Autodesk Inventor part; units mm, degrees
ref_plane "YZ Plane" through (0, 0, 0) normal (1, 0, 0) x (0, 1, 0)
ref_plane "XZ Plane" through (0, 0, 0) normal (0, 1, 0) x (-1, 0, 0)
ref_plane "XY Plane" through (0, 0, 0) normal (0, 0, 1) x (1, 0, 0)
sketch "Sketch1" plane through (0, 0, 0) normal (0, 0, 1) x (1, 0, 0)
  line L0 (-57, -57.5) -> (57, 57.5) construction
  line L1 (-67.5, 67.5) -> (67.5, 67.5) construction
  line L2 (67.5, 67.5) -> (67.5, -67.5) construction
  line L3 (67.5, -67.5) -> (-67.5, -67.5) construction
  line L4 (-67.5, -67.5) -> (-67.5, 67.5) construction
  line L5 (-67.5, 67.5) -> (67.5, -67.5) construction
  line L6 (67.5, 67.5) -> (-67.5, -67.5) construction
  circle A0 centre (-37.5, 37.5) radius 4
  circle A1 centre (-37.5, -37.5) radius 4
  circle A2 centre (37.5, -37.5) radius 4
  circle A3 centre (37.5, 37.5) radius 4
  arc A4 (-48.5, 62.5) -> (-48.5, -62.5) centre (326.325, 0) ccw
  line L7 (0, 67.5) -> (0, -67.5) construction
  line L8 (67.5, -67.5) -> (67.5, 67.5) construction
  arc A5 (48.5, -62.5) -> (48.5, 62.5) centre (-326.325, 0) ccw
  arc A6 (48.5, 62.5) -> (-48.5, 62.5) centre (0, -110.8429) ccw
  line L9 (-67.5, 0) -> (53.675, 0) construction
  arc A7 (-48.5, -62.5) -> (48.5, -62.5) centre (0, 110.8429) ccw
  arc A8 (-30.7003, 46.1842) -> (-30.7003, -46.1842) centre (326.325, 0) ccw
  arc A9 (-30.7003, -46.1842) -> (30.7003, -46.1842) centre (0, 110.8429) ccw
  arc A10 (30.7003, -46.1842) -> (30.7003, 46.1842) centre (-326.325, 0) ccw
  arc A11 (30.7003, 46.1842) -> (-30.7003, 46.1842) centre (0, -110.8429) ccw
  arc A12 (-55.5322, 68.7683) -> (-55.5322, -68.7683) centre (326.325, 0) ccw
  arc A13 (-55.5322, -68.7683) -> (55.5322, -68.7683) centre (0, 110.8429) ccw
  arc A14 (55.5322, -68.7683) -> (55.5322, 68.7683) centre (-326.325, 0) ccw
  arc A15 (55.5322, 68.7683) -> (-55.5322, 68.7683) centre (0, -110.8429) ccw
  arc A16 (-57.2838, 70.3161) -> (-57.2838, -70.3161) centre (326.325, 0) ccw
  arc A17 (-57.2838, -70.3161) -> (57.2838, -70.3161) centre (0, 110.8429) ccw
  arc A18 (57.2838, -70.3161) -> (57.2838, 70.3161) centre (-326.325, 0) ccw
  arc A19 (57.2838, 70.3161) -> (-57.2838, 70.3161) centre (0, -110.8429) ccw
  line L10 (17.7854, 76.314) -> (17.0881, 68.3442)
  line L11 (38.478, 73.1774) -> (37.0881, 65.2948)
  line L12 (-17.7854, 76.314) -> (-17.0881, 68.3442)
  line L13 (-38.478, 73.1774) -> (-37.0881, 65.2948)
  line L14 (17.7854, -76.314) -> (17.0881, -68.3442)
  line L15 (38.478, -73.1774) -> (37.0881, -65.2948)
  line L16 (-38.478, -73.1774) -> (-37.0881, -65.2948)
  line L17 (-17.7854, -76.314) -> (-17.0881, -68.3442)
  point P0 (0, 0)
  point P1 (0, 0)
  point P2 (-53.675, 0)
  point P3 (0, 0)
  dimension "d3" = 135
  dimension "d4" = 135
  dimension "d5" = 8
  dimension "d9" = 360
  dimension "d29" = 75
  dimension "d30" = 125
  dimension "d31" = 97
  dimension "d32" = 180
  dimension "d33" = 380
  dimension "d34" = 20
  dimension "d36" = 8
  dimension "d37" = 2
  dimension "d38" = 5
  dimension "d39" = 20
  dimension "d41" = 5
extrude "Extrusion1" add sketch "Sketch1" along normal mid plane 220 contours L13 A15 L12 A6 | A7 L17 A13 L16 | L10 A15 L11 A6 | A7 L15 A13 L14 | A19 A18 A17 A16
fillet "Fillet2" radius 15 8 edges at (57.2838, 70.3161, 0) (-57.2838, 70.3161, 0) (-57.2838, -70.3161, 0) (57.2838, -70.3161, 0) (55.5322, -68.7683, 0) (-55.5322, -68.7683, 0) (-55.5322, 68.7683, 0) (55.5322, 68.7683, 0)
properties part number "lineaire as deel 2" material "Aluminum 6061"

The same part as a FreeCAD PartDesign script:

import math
import FreeCAD as App
import Part
import Sketcher

V = App.Vector
Q = App.Units.Quantity


def edges_at(feature, points):
    """Names of the edges that pass closest to the given points."""
    edges = feature.Shape.Edges
    near = lambda p: min(range(len(edges)), key=lambda i: edges[i].distToShape(Part.Vertex(*p))[0])
    return sorted({f"Edge{near(p) + 1}" for p in points})

doc = App.newDocument("Part")
body = doc.addObject("PartDesign::Body", "Body")

# Sketch on XY plane
sketch1 = doc.addObject("Sketcher::SketchObject", "Sketch")
body.addObject(sketch1)
sketch1.AttachmentSupport = (doc.XY_Plane, [""])
sketch1.MapMode = "FlatFace"
sketch1.addGeometry(Part.ArcOfCircle(Part.Circle(V(0, -111, 0), V(0, 0, 1), 190), math.radians(72), math.radians(108)), False)
sketch1.addGeometry(Part.ArcOfCircle(Part.Circle(V(326, 0, 0), V(0, 0, 1), 390), math.radians(170), math.radians(190)), False)
sketch1.addGeometry(Part.ArcOfCircle(Part.Circle(V(0, 111, 0), V(0, 0, 1), 190), math.radians(-108), math.radians(-72)), False)
sketch1.addGeometry(Part.ArcOfCircle(Part.Circle(V(-326, 0, 0), V(0, 0, 1), 390), math.radians(-10), math.radians(10)), False)
sketch1.addGeometry(Part.LineSegment(V(-38, 73, 0), V(-37, 65, 0)), False)
sketch1.addGeometry(Part.ArcOfCircle(Part.Circle(V(0, -111, 0), V(0, 0, 1), 180), math.radians(95.45), math.radians(101.89)), False)
sketch1.addGeometry(Part.LineSegment(V(-17, 68, 0), V(-18, 76, 0)), False)
sketch1.addGeometry(Part.ArcOfCircle(Part.Circle(V(0, -111, 0), V(0, 0, 1), 188), math.radians(84.57), math.radians(95.43)), False)
sketch1.addGeometry(Part.LineSegment(V(18, 76, 0), V(17, 68, 0)), False)
sketch1.addGeometry(Part.ArcOfCircle(Part.Circle(V(0, -111, 0), V(0, 0, 1), 180), math.radians(78.11), math.radians(84.55)), False)
sketch1.addGeometry(Part.LineSegment(V(37, 65, 0), V(38, 73, 0)), False)
sketch1.addGeometry(Part.ArcOfCircle(Part.Circle(V(0, -111, 0), V(0, 0, 1), 188), math.radians(72.82), math.radians(78.19)), False)
sketch1.addGeometry(Part.ArcOfCircle(Part.Circle(V(-326, 0, 0), V(0, 0, 1), 388), math.radians(-10), math.radians(10)), False)
sketch1.addGeometry(Part.ArcOfCircle(Part.Circle(V(0, 111, 0), V(0, 0, 1), 188), math.radians(-78.19), math.radians(-72.82)), False)
sketch1.addGeometry(Part.LineSegment(V(38, -73, 0), V(37, -65, 0)), False)
sketch1.addGeometry(Part.ArcOfCircle(Part.Circle(V(0, 111, 0), V(0, 0, 1), 180), math.radians(-84.55), math.radians(-78.11)), False)
sketch1.addGeometry(Part.LineSegment(V(17, -68, 0), V(18, -76, 0)), False)
sketch1.addGeometry(Part.ArcOfCircle(Part.Circle(V(0, 111, 0), V(0, 0, 1), 188), math.radians(-95.43), math.radians(-84.57)), False)
sketch1.addGeometry(Part.LineSegment(V(-18, -76, 0), V(-17, -68, 0)), False)
sketch1.addGeometry(Part.ArcOfCircle(Part.Circle(V(0, 111, 0), V(0, 0, 1), 180), math.radians(-101.89), math.radians(-95.45)), False)
sketch1.addGeometry(Part.LineSegment(V(-37, -65, 0), V(-38, -73, 0)), False)
sketch1.addGeometry(Part.ArcOfCircle(Part.Circle(V(0, 111, 0), V(0, 0, 1), 188), math.radians(-107.18), math.radians(-101.81)), False)
sketch1.addGeometry(Part.ArcOfCircle(Part.Circle(V(326, 0, 0), V(0, 0, 1), 388), math.radians(170), math.radians(190)), False)
sketch1.addGeometry(Part.ArcOfCircle(Part.Circle(V(0, -111, 0), V(0, 0, 1), 188), math.radians(101.81), math.radians(107.18)), False)
sketch1.addConstraint(Sketcher.Constraint("Coincident", 0, 2, 1, 1))
sketch1.addConstraint(Sketcher.Constraint("Coincident", 1, 2, 2, 1))
sketch1.addConstraint(Sketcher.Constraint("Coincident", 2, 2, 3, 1))
sketch1.addConstraint(Sketcher.Constraint("Coincident", 3, 2, 0, 1))
sketch1.addConstraint(Sketcher.Constraint("Coincident", 4, 2, 5, 2))
sketch1.addConstraint(Sketcher.Constraint("Coincident", 5, 1, 6, 1))
sketch1.addConstraint(Sketcher.Constraint("Coincident", 6, 2, 7, 2))
sketch1.addConstraint(Sketcher.Constraint("Coincident", 7, 1, 8, 1))
sketch1.addConstraint(Sketcher.Constraint("Coincident", 8, 2, 9, 2))
sketch1.addConstraint(Sketcher.Constraint("Coincident", 9, 1, 10, 1))
sketch1.addConstraint(Sketcher.Constraint("Coincident", 10, 2, 11, 2))
sketch1.addConstraint(Sketcher.Constraint("Coincident", 11, 1, 12, 2))
sketch1.addConstraint(Sketcher.Constraint("Coincident", 12, 1, 13, 2))
sketch1.addConstraint(Sketcher.Constraint("Coincident", 13, 1, 14, 1))
sketch1.addConstraint(Sketcher.Constraint("Coincident", 14, 2, 15, 2))
sketch1.addConstraint(Sketcher.Constraint("Coincident", 15, 1, 16, 1))
sketch1.addConstraint(Sketcher.Constraint("Coincident", 16, 2, 17, 2))
sketch1.addConstraint(Sketcher.Constraint("Coincident", 17, 1, 18, 1))
sketch1.addConstraint(Sketcher.Constraint("Coincident", 18, 2, 19, 2))
sketch1.addConstraint(Sketcher.Constraint("Coincident", 19, 1, 20, 1))
sketch1.addConstraint(Sketcher.Constraint("Coincident", 20, 2, 21, 2))
sketch1.addConstraint(Sketcher.Constraint("Coincident", 21, 1, 22, 2))
sketch1.addConstraint(Sketcher.Constraint("Coincident", 22, 1, 23, 2))
sketch1.addConstraint(Sketcher.Constraint("Coincident", 23, 1, 4, 1))
sketch1.addConstraint(Sketcher.Constraint("Coincident", 5, 3, 0, 3))
sketch1.addConstraint(Sketcher.Constraint("Coincident", 7, 3, 0, 3))
sketch1.addConstraint(Sketcher.Constraint("Coincident", 9, 3, 0, 3))
sketch1.addConstraint(Sketcher.Constraint("Coincident", 11, 3, 0, 3))
sketch1.addConstraint(Sketcher.Constraint("Coincident", 12, 3, 3, 3))
sketch1.addConstraint(Sketcher.Constraint("Coincident", 13, 3, 2, 3))
sketch1.addConstraint(Sketcher.Constraint("Coincident", 15, 3, 2, 3))
sketch1.addConstraint(Sketcher.Constraint("Coincident", 17, 3, 2, 3))
sketch1.addConstraint(Sketcher.Constraint("Coincident", 19, 3, 2, 3))
sketch1.addConstraint(Sketcher.Constraint("Coincident", 21, 3, 2, 3))
sketch1.addConstraint(Sketcher.Constraint("Coincident", 22, 3, 1, 3))
sketch1.addConstraint(Sketcher.Constraint("Coincident", 23, 3, 0, 3))
sketch1.addConstraint(Sketcher.Constraint("Equal", 0, 2))
sketch1.addConstraint(Sketcher.Constraint("Equal", 1, 3))
sketch1.addConstraint(Sketcher.Constraint("Equal", 5, 9))
sketch1.addConstraint(Sketcher.Constraint("Equal", 7, 11))
sketch1.addConstraint(Sketcher.Constraint("Equal", 11, 13))
sketch1.addConstraint(Sketcher.Constraint("Equal", 9, 15))
sketch1.addConstraint(Sketcher.Constraint("Equal", 13, 17))
sketch1.addConstraint(Sketcher.Constraint("Equal", 15, 19))
sketch1.addConstraint(Sketcher.Constraint("Equal", 17, 21))
sketch1.addConstraint(Sketcher.Constraint("Equal", 12, 22))
sketch1.addConstraint(Sketcher.Constraint("Equal", 21, 23))
sketch1.addConstraint(Sketcher.Constraint("Symmetric", 0, 3, 2, 3, -1, 1))
sketch1.addConstraint(Sketcher.Constraint("Symmetric", 1, 3, 3, 3, -1, 1))
sketch1.addConstraint(Sketcher.Constraint("Symmetric", 6, 2, 7, 1, -2))
sketch1.addConstraint(Sketcher.Constraint("PointOnObject", 1, 3, -1))
sketch1.addConstraint(Sketcher.Constraint("Parallel", 4, 14))
sketch1.addConstraint(Sketcher.Constraint("Parallel", 6, 16))
sketch1.addConstraint(Sketcher.Constraint("Parallel", 8, 18))
sketch1.addConstraint(Sketcher.Constraint("Parallel", 10, 20))
sketch1.addConstraint(Sketcher.Constraint("Horizontal", 5, 1, 8, 2))
sketch1.addConstraint(Sketcher.Constraint("Horizontal", 4, 2, 9, 1))
sketch1.addConstraint(Sketcher.Constraint("Horizontal", 16, 2, 17, 1))
sketch1.addConstraint(Sketcher.Constraint("Horizontal", 14, 2, 19, 1))
sketch1.addConstraint(Sketcher.Constraint("Horizontal", 13, 1, 20, 2))
sketch1.addConstraint(Sketcher.Constraint("Vertical", 10, 2, 13, 1))
sketch1.addConstraint(Sketcher.Constraint("Vertical", 8, 2, 15, 1))
sketch1.addConstraint(Sketcher.Constraint("Radius", 0, Q("190 mm")))
sketch1.addConstraint(Sketcher.Constraint("Radius", 5, Q("180 mm")))
sketch1.addConstraint(Sketcher.Constraint("Radius", 1, Q("390 mm")))
sketch1.addConstraint(Sketcher.Constraint("Radius", 7, Q("188 mm")))
sketch1.addConstraint(Sketcher.Constraint("Radius", 12, Q("388 mm")))
sketch1.addConstraint(Sketcher.Constraint("DistanceX", 4, 2, 5, 1, Q("20 mm")))
sketch1.addConstraint(Sketcher.Constraint("Angle", 4, Q("-80 deg")))
sketch1.addConstraint(Sketcher.Constraint("Angle", 6, Q("95.0002 deg")))
sketch1.addConstraint(Sketcher.Constraint("DistanceX", 3, 3, 1, 3, Q("652.65 mm")))
sketch1.addConstraint(Sketcher.Constraint("DistanceY", 0, 3, -1, 1, Q("110.843 mm")))
sketch1.addConstraint(Sketcher.Constraint("DistanceX", 4, 2, -1, 1, Q("37.088 mm")))
pad1 = doc.addObject("PartDesign::Pad", "Pad")
body.addObject(pad1)
pad1.Profile = sketch1
pad1.Length = 220
pad1.Midplane = True
doc.recompute()

fillet = doc.addObject("PartDesign::Fillet", "Fillet")
body.addObject(fillet)
fillet.Base = (pad1, edges_at(pad1, [
    (57.284, 70.316, 0),
    (-57.284, 70.316, 0),
    (-57.284, -70.316, 0),
    (57.284, -70.316, 0),
    (55.532, -68.768, 0),
    (-55.532, -68.768, 0),
    (-55.532, 68.768, 0),
    (55.532, 68.768, 0),
]))
fillet.Radius = 15

doc.recompute()
